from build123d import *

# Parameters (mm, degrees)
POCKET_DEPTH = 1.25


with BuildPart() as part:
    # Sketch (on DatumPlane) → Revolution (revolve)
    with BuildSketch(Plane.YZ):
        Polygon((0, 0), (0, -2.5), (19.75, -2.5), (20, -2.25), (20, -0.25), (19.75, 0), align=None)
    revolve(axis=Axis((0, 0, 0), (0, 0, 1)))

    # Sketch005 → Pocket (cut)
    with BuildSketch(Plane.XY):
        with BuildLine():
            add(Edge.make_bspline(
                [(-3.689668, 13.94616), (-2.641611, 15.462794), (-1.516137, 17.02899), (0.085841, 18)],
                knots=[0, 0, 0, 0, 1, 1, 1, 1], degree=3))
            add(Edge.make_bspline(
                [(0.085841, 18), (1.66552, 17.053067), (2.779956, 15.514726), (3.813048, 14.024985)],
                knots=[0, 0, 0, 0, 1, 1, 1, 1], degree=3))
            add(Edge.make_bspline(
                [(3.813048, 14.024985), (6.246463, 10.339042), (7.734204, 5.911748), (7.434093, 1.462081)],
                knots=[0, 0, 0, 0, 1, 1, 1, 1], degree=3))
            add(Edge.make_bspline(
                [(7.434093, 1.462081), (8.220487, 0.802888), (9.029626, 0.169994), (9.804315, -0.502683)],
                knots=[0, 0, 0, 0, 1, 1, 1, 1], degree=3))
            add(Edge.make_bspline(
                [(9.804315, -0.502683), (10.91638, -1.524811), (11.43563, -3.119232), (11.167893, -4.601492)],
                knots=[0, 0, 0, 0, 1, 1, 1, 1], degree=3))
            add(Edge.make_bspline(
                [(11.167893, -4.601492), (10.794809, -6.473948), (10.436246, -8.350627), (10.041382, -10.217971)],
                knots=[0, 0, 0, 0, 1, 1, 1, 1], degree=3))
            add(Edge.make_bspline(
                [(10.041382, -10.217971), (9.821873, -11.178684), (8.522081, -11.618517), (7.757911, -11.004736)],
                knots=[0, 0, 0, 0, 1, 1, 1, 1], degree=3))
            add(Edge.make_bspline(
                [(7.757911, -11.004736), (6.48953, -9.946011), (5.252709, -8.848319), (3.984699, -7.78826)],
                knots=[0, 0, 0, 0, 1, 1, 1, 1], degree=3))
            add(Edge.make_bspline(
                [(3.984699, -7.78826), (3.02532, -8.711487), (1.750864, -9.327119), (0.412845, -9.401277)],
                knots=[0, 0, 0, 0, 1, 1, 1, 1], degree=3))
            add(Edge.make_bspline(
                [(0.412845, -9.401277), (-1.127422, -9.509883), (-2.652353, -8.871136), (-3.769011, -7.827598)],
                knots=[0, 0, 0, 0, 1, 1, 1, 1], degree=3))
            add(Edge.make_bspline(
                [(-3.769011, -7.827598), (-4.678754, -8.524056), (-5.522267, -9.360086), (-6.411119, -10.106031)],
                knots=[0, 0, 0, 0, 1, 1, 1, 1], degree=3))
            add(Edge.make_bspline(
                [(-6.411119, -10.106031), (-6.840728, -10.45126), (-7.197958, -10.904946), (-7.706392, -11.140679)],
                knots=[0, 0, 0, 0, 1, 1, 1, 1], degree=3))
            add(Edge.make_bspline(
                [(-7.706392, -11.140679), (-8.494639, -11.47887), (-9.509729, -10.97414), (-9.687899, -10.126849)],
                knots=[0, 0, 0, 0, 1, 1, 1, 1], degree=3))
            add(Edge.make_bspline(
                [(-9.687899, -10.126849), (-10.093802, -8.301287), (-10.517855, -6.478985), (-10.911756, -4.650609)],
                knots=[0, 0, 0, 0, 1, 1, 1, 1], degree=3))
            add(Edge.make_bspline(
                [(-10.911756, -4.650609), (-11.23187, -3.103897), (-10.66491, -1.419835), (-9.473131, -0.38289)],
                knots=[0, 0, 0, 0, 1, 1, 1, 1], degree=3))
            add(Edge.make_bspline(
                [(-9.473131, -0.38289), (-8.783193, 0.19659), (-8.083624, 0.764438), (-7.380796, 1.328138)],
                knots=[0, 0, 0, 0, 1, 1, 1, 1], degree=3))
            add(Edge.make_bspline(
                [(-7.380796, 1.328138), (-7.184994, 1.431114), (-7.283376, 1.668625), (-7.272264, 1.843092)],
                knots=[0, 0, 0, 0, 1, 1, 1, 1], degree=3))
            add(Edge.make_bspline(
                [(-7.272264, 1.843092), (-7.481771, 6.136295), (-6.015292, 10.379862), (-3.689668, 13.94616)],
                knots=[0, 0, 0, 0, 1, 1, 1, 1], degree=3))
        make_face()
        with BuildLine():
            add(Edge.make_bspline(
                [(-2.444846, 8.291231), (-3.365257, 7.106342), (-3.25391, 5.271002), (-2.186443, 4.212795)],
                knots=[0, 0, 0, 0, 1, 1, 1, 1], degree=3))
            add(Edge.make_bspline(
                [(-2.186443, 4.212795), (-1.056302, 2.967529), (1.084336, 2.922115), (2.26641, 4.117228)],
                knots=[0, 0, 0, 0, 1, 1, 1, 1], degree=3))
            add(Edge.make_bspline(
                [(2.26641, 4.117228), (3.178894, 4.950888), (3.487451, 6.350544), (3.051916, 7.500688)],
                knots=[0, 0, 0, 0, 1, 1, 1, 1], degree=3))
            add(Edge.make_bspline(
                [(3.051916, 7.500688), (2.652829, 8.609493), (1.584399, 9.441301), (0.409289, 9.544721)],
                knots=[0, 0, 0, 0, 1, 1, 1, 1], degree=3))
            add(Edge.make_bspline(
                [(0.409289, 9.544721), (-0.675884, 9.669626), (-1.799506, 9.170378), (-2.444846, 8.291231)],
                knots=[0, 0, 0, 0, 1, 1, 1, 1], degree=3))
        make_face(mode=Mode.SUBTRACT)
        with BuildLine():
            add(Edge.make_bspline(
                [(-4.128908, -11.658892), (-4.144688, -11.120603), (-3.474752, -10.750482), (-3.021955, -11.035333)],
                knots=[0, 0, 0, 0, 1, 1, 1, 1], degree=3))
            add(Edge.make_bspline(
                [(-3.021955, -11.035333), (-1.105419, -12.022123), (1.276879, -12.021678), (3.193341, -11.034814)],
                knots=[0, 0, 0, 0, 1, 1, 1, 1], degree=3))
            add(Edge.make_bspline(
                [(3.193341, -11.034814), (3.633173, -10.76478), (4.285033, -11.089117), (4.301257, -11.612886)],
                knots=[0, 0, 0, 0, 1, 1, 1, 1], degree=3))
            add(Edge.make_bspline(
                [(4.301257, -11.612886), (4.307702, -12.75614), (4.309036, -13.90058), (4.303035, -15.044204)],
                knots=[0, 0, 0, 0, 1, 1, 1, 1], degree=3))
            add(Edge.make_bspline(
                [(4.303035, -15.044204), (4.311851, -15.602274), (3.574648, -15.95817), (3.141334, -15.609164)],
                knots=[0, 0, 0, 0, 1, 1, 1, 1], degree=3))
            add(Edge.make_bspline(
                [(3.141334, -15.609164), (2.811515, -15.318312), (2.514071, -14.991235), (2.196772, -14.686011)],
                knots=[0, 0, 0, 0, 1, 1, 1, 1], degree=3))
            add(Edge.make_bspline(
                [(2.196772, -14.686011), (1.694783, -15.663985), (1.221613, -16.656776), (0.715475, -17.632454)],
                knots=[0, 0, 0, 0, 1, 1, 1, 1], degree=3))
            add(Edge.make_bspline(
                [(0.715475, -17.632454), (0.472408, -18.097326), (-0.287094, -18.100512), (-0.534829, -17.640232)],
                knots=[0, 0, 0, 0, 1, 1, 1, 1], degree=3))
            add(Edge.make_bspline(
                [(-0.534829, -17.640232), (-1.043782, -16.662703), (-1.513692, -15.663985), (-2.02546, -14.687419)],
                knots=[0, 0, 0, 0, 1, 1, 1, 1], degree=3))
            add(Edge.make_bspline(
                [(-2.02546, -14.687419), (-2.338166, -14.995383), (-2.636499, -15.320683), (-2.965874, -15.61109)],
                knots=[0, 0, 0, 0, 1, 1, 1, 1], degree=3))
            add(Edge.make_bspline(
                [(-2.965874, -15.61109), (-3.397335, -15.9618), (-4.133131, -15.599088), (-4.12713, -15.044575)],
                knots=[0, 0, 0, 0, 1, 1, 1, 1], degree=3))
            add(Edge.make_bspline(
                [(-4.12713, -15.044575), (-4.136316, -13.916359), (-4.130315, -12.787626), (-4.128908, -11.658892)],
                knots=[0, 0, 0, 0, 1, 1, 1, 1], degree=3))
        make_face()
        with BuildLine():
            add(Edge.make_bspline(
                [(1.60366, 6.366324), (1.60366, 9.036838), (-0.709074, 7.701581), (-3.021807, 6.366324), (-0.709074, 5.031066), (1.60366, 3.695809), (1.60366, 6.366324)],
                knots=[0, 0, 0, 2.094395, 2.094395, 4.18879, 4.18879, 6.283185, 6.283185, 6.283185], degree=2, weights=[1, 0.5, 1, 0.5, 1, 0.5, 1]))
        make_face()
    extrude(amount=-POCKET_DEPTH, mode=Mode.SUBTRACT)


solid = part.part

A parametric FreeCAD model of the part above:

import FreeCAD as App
import Part
import Sketcher

V = App.Vector


def add_polygon(sketch, points):
    """Adds a closed chain of lines whose ends are joined by coincident constraints."""
    first, n = sketch.GeometryCount, len(points)
    for a, b in zip(points, points[1:] + points[:1]):
        sketch.addGeometry(Part.LineSegment(App.Vector(*a, 0), App.Vector(*b, 0)), False)
    for i in range(n):
        sketch.addConstraint(Sketcher.Constraint("Coincident", first + i, 2, first + (i + 1) % n, 1))

doc = App.newDocument("Part")
params = doc.addObject("Spreadsheet::Sheet", "Params")
for row, (alias, value) in enumerate([
    ("sketch1_height", "2 mm"),
    ("sketch1_height2", "2.5 mm"),
    ("revolution_angle", "360 deg"),
    ("pocket1_length", "1.25 mm"),
], start=1):
    params.set(f"A{row}", alias)
    params.set(f"B{row}", "=" + value)
    params.setAlias(f"B{row}", alias)

body = doc.addObject("PartDesign::Body", "Body")

# Sketch on YZ plane
sketch1 = body.newObject("Sketcher::SketchObject", "Sketch")
sketch1.AttachmentSupport = (doc.getObject("YZ_Plane"), [""])
sketch1.MapMode = "FlatFace"
add_polygon(sketch1, [(0, 0), (0, -2.5), (19.75, -2.5), (20, -2.25), (20, -0.25), (19.75, 0)])  # lines 0-5
sketch1.addConstraint(Sketcher.Constraint("Vertical", 0))
sketch1.addConstraint(Sketcher.Constraint("Horizontal", 1))
sketch1.addConstraint(Sketcher.Constraint("Vertical", 3))
sketch1.addConstraint(Sketcher.Constraint("Horizontal", 5))
sketch1.addConstraint(Sketcher.Constraint("Coincident", 5, 2, -1, 1))
sketch1.addConstraint(Sketcher.Constraint("Perpendicular", 2, 4))
sketch1.addConstraint(Sketcher.Constraint("Vertical", 1, 2, 4, 2))
sketch1.addConstraint(Sketcher.Constraint("Equal", 2, 4))
sketch1.addConstraint(Sketcher.Constraint("DistanceY", 3, 1, 3, 2, 2.0))
sketch1.addConstraint(Sketcher.Constraint("DistanceY", 0, 2, 0, 1, 2.5))
sketch1.addConstraint(Sketcher.Constraint("DistanceX", -1, 1, 2, 2, 20.0))
sketch1.setExpression("Constraints[14]", "Params.sketch1_height")
sketch1.setExpression("Constraints[15]", "Params.sketch1_height2")
revolution = body.newObject("PartDesign::Revolution", "Revolution")
revolution.Profile = sketch1
revolution.ReferenceAxis = (sketch1, ["V_Axis"])
revolution.setExpression("Angle", "Params.revolution_angle")

# Sketch on XY plane
sketch2 = body.newObject("Sketcher::SketchObject", "Sketch001")
sketch2.AttachmentSupport = (doc.getObject("XY_Plane"), [""])
sketch2.MapMode = "FlatFace"
sketch2.addGeometry(Part.BSplineCurve([V(-3.689668, 13.94616, 0), V(-2.641611, 15.462794, 0), V(-1.516137, 17.02899, 0), V(0.085841, 18, 0)], [4, 4], [0, 1], False, 3, [1, 1, 1, 1], False), False)
sketch2.addGeometry(Part.BSplineCurve([V(-7.272264, 1.843092, 0), V(-7.481771, 6.136295, 0), V(-6.015292, 10.379862, 0), V(-3.689668, 13.94616, 0)], [4, 4], [0, 1], False, 3, [1, 1, 1, 1], False), False)
sketch2.addGeometry(Part.BSplineCurve([V(-7.380796, 1.328138, 0), V(-7.184994, 1.431114, 0), V(-7.283376, 1.668625, 0), V(-7.272264, 1.843092, 0)], [4, 4], [0, 1], False, 3, [1, 1, 1, 1], False), False)
sketch2.addGeometry(Part.BSplineCurve([V(-9.473131, -0.38289, 0), V(-8.783193, 0.19659, 0), V(-8.083624, 0.764438, 0), V(-7.380796, 1.328138, 0)], [4, 4], [0, 1], False, 3, [1, 1, 1, 1], False), False)
sketch2.addGeometry(Part.BSplineCurve([V(-10.911756, -4.650609, 0), V(-11.23187, -3.103897, 0), V(-10.66491, -1.419835, 0), V(-9.473131, -0.38289, 0)], [4, 4], [0, 1], False, 3, [1, 1, 1, 1], False), False)
sketch2.addGeometry(Part.BSplineCurve([V(-9.687899, -10.126849, 0), V(-10.093802, -8.301287, 0), V(-10.517855, -6.478985, 0), V(-10.911756, -4.650609, 0)], [4, 4], [0, 1], False, 3, [1, 1, 1, 1], False), False)
sketch2.addGeometry(Part.BSplineCurve([V(-7.706392, -11.140679, 0), V(-8.494639, -11.47887, 0), V(-9.509729, -10.97414, 0), V(-9.687899, -10.126849, 0)], [4, 4], [0, 1], False, 3, [1, 1, 1, 1], False), False)
sketch2.addGeometry(Part.BSplineCurve([V(-6.411119, -10.106031, 0), V(-6.840728, -10.45126, 0), V(-7.197958, -10.904946, 0), V(-7.706392, -11.140679, 0)], [4, 4], [0, 1], False, 3, [1, 1, 1, 1], False), False)
sketch2.addGeometry(Part.BSplineCurve([V(-3.769011, -7.827598, 0), V(-4.678754, -8.524056, 0), V(-5.522267, -9.360086, 0), V(-6.411119, -10.106031, 0)], [4, 4], [0, 1], False, 3, [1, 1, 1, 1], False), False)
sketch2.addGeometry(Part.BSplineCurve([V(0.412845, -9.401277, 0), V(-1.127422, -9.509883, 0), V(-2.652353, -8.871136, 0), V(-3.769011, -7.827598, 0)], [4, 4], [0, 1], False, 3, [1, 1, 1, 1], False), False)
sketch2.addGeometry(Part.BSplineCurve([V(3.984699, -7.78826, 0), V(3.02532, -8.711487, 0), V(1.750864, -9.327119, 0), V(0.412845, -9.401277, 0)], [4, 4], [0, 1], False, 3, [1, 1, 1, 1], False), False)
sketch2.addGeometry(Part.BSplineCurve([V(7.757911, -11.004736, 0), V(6.48953, -9.946011, 0), V(5.252709, -8.848319, 0), V(3.984699, -7.78826, 0)], [4, 4], [0, 1], False, 3, [1, 1, 1, 1], False), False)
sketch2.addGeometry(Part.BSplineCurve([V(10.041382, -10.217971, 0), V(9.821873, -11.178684, 0), V(8.522081, -11.618517, 0), V(7.757911, -11.004736, 0)], [4, 4], [0, 1], False, 3, [1, 1, 1, 1], False), False)
sketch2.addGeometry(Part.BSplineCurve([V(11.167893, -4.601492, 0), V(10.794809, -6.473948, 0), V(10.436246, -8.350627, 0), V(10.041382, -10.217971, 0)], [4, 4], [0, 1], False, 3, [1, 1, 1, 1], False), False)
sketch2.addGeometry(Part.BSplineCurve([V(9.804315, -0.502683, 0), V(10.91638, -1.524811, 0), V(11.43563, -3.119232, 0), V(11.167893, -4.601492, 0)], [4, 4], [0, 1], False, 3, [1, 1, 1, 1], False), False)
sketch2.addGeometry(Part.BSplineCurve([V(7.434093, 1.462081, 0), V(8.220487, 0.802888, 0), V(9.029626, 0.169994, 0), V(9.804315, -0.502683, 0)], [4, 4], [0, 1], False, 3, [1, 1, 1, 1], False), False)
sketch2.addGeometry(Part.BSplineCurve([V(3.813048, 14.024985, 0), V(6.246463, 10.339042, 0), V(7.734204, 5.911748, 0), V(7.434093, 1.462081, 0)], [4, 4], [0, 1], False, 3, [1, 1, 1, 1], False), False)
sketch2.addGeometry(Part.BSplineCurve([V(0.085841, 18, 0), V(1.66552, 17.053067, 0), V(2.779956, 15.514726, 0), V(3.813048, 14.024985, 0)], [4, 4], [0, 1], False, 3, [1, 1, 1, 1], False), False)
sketch2.addGeometry(Part.BSplineCurve([V(0.409289, 9.544721, 0), V(-0.675884, 9.669626, 0), V(-1.799506, 9.170378, 0), V(-2.444846, 8.291231, 0)], [4, 4], [0, 1], False, 3, [1, 1, 1, 1], False), False)
sketch2.addGeometry(Part.BSplineCurve([V(3.051916, 7.500688, 0), V(2.652829, 8.609493, 0), V(1.584399, 9.441301, 0), V(0.409289, 9.544721, 0)], [4, 4], [0, 1], False, 3, [1, 1, 1, 1], False), False)
sketch2.addGeometry(Part.BSplineCurve([V(2.26641, 4.117228, 0), V(3.178894, 4.950888, 0), V(3.487451, 6.350544, 0), V(3.051916, 7.500688, 0)], [4, 4], [0, 1], False, 3, [1, 1, 1, 1], False), False)
sketch2.addGeometry(Part.BSplineCurve([V(-2.186443, 4.212795, 0), V(-1.056302, 2.967529, 0), V(1.084336, 2.922115, 0), V(2.26641, 4.117228, 0)], [4, 4], [0, 1], False, 3, [1, 1, 1, 1], False), False)
sketch2.addGeometry(Part.BSplineCurve([V(-2.444846, 8.291231, 0), V(-3.365257, 7.106342, 0), V(-3.25391, 5.271002, 0), V(-2.186443, 4.212795, 0)], [4, 4], [0, 1], False, 3, [1, 1, 1, 1], False), False)
sketch2.addGeometry(Part.BSplineCurve([V(-4.128908, -11.658892, 0), V(-4.144688, -11.120603, 0), V(-3.474752, -10.750482, 0), V(-3.021955, -11.035333, 0)], [4, 4], [0, 1], False, 3, [1, 1, 1, 1], False), False)
sketch2.addGeometry(Part.BSplineCurve([V(-4.12713, -15.044575, 0), V(-4.136316, -13.916359, 0), V(-4.130315, -12.787626, 0), V(-4.128908, -11.658892, 0)], [4, 4], [0, 1], False, 3, [1, 1, 1, 1], False), False)
sketch2.addGeometry(Part.BSplineCurve([V(-2.965874, -15.61109, 0), V(-3.397335, -15.9618, 0), V(-4.133131, -15.599088, 0), V(-4.12713, -15.044575, 0)], [4, 4], [0, 1], False, 3, [1, 1, 1, 1], False), False)
sketch2.addGeometry(Part.BSplineCurve([V(-2.02546, -14.687419, 0), V(-2.338166, -14.995383, 0), V(-2.636499, -15.320683, 0), V(-2.965874, -15.61109, 0)], [4, 4], [0, 1], False, 3, [1, 1, 1, 1], False), False)
sketch2.addGeometry(Part.BSplineCurve([V(-0.534829, -17.640232, 0), V(-1.043782, -16.662703, 0), V(-1.513692, -15.663985, 0), V(-2.02546, -14.687419, 0)], [4, 4], [0, 1], False, 3, [1, 1, 1, 1], False), False)
sketch2.addGeometry(Part.BSplineCurve([V(0.715475, -17.632454, 0), V(0.472408, -18.097326, 0), V(-0.287094, -18.100512, 0), V(-0.534829, -17.640232, 0)], [4, 4], [0, 1], False, 3, [1, 1, 1, 1], False), False)
sketch2.addGeometry(Part.BSplineCurve([V(2.196772, -14.686011, 0), V(1.694783, -15.663985, 0), V(1.221613, -16.656776, 0), V(0.715475, -17.632454, 0)], [4, 4], [0, 1], False, 3, [1, 1, 1, 1], False), False)
sketch2.addGeometry(Part.BSplineCurve([V(3.141334, -15.609164, 0), V(2.811515, -15.318312, 0), V(2.514071, -14.991235, 0), V(2.196772, -14.686011, 0)], [4, 4], [0, 1], False, 3, [1, 1, 1, 1], False), False)
sketch2.addGeometry(Part.BSplineCurve([V(4.303035, -15.044204, 0), V(4.311851, -15.602274, 0), V(3.574648, -15.95817, 0), V(3.141334, -15.609164, 0)], [4, 4], [0, 1], False, 3, [1, 1, 1, 1], False), False)
sketch2.addGeometry(Part.BSplineCurve([V(4.301257, -11.612886, 0), V(4.307702, -12.75614, 0), V(4.309036, -13.90058, 0), V(4.303035, -15.044204, 0)], [4, 4], [0, 1], False, 3, [1, 1, 1, 1], False), False)
sketch2.addGeometry(Part.BSplineCurve([V(3.193341, -11.034814, 0), V(3.633173, -10.76478, 0), V(4.285033, -11.089117, 0), V(4.301257, -11.612886, 0)], [4, 4], [0, 1], False, 3, [1, 1, 1, 1], False), False)
sketch2.addGeometry(Part.BSplineCurve([V(-3.021955, -11.035333, 0), V(-1.105419, -12.022123, 0), V(1.276879, -12.021678, 0), V(3.193341, -11.034814, 0)], [4, 4], [0, 1], False, 3, [1, 1, 1, 1], False), False)
sketch2.addGeometry(Part.BSplineCurve([V(1.60366, 6.366324, 0), V(1.60366, 9.036838, 0), V(-0.709074, 7.701581, 0), V(-3.021807, 6.366324, 0), V(-0.709074, 5.031066, 0), V(1.60366, 3.695809, 0), V(1.60366, 6.366324, 0)], [3, 2, 2, 3], [0, 2.094395, 4.18879, 6.283185], False, 2, [1, 0.5, 1, 0.5, 1, 0.5, 1], False), False)
sketch2.addConstraint(Sketcher.Constraint("Block", 0))
sketch2.addConstraint(Sketcher.Constraint("Block", 1))
sketch2.addConstraint(Sketcher.Constraint("Block", 2))
sketch2.addConstraint(Sketcher.Constraint("Block", 3))
sketch2.addConstraint(Sketcher.Constraint("Block", 4))
sketch2.addConstraint(Sketcher.Constraint("Block", 5))
sketch2.addConstraint(Sketcher.Constraint("Block", 6))
sketch2.addConstraint(Sketcher.Constraint("Block", 7))
sketch2.addConstraint(Sketcher.Constraint("Block", 8))
sketch2.addConstraint(Sketcher.Constraint("Block", 9))
sketch2.addConstraint(Sketcher.Constraint("Block", 10))
sketch2.addConstraint(Sketcher.Constraint("Block", 11))
sketch2.addConstraint(Sketcher.Constraint("Block", 12))
sketch2.addConstraint(Sketcher.Constraint("Block", 13))
sketch2.addConstraint(Sketcher.Constraint("Block", 14))
sketch2.addConstraint(Sketcher.Constraint("Block", 15))
sketch2.addConstraint(Sketcher.Constraint("Block", 16))
sketch2.addConstraint(Sketcher.Constraint("Block", 17))
sketch2.addConstraint(Sketcher.Constraint("Block", 18))
sketch2.addConstraint(Sketcher.Constraint("Block", 19))
sketch2.addConstraint(Sketcher.Constraint("Block", 20))
sketch2.addConstraint(Sketcher.Constraint("Block", 21))
sketch2.addConstraint(Sketcher.Constraint("Block", 22))
sketch2.addConstraint(Sketcher.Constraint("Block", 23))
sketch2.addConstraint(Sketcher.Constraint("Block", 24))
sketch2.addConstraint(Sketcher.Constraint("Block", 25))
sketch2.addConstraint(Sketcher.Constraint("Block", 26))
sketch2.addConstraint(Sketcher.Constraint("Block", 27))
sketch2.addConstraint(Sketcher.Constraint("Block", 28))
sketch2.addConstraint(Sketcher.Constraint("Block", 29))
sketch2.addConstraint(Sketcher.Constraint("Block", 30))
sketch2.addConstraint(Sketcher.Constraint("Block", 31))
sketch2.addConstraint(Sketcher.Constraint("Block", 32))
sketch2.addConstraint(Sketcher.Constraint("Block", 33))
sketch2.addConstraint(Sketcher.Constraint("Block", 34))
sketch2.addConstraint(Sketcher.Constraint("Block", 35))
pocket1 = body.newObject("PartDesign::Pocket", "Pocket")
pocket1.Profile = sketch2
pocket1.setExpression("Length", "Params.pocket1_length")

doc.recompute()
